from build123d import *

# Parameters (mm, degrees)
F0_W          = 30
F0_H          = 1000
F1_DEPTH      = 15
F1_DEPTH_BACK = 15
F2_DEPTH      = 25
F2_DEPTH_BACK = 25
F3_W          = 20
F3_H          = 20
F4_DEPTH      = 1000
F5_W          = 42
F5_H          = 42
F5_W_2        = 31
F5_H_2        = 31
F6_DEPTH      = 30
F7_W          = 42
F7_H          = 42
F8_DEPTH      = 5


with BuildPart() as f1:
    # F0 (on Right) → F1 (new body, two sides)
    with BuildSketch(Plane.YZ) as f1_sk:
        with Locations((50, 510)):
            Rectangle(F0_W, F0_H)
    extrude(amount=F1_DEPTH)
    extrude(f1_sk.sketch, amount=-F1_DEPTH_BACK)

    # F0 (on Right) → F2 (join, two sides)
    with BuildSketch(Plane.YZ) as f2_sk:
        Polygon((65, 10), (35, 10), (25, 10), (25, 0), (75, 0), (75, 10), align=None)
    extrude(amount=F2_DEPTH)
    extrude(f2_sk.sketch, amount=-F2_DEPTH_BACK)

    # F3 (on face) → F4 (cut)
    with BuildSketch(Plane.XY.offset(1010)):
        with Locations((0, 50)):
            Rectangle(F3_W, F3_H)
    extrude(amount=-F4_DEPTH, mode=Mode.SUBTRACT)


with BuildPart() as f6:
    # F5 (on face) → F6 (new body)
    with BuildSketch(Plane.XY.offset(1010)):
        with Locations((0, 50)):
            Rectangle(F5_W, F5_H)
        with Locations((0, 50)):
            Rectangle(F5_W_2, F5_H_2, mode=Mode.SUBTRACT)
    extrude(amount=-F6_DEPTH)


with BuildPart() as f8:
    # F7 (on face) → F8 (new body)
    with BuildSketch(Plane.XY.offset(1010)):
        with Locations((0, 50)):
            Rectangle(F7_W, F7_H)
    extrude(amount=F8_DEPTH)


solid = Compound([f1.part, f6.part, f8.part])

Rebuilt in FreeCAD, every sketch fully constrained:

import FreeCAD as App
import Part
import Sketcher

V = App.Vector

doc = App.newDocument("Part")
params = doc.addObject("Spreadsheet::Sheet", "Params")
for row, (alias, value) in enumerate([
    ("sketch1_width", "30 mm"),
    ("sketch1_height", "1000 mm"),
    ("pad1_length", "15 mm"),
    ("pad1_length2", "15 mm"),
    ("sketch2_width", "50 mm"),
    ("sketch2_height", "10 mm"),
    ("pad2_length", "25 mm"),
    ("pad2_length2", "25 mm"),
    ("sketch3_width", "20 mm"),
    ("pocket1_length", "1000 mm"),
    ("sketch4_width", "42 mm"),
    ("sketch4_width2", "31 mm"),
    ("pad3_length", "30 mm"),
    ("sketch5_width", "42 mm"),
    ("pad4_length", "5 mm"),
], start=1):
    params.set(f"A{row}", alias)
    params.set(f"B{row}", "=" + value)
    params.setAlias(f"B{row}", alias)

body = doc.addObject("PartDesign::Body", "Body")

sketch1 = body.newObject("Sketcher::SketchObject", "Sketch")
sketch1.AttachmentSupport = (doc.getObject("YZ_Plane"), [""])
sketch1.MapMode = "FlatFace"
sketch1.addGeometry([
    Part.LineSegment(V(35, 1010, 0), V(35, 10, 0)),
    Part.LineSegment(V(35, 10, 0), V(65, 10, 0)),
    Part.LineSegment(V(65, 10, 0), V(65, 1010, 0)),
    Part.LineSegment(V(65, 1010, 0), V(35, 1010, 0)),
], False)
sketch1.addConstraint([
    Sketcher.Constraint("Coincident", 0, 2, 1, 1),
    Sketcher.Constraint("Coincident", 1, 2, 2, 1),
    Sketcher.Constraint("Coincident", 2, 2, 3, 1),
    Sketcher.Constraint("Coincident", 3, 2, 0, 1),
    Sketcher.Constraint("Vertical", 0),
    Sketcher.Constraint("Horizontal", 1),
    Sketcher.Constraint("Vertical", 2),
    Sketcher.Constraint("Horizontal", 3),
    Sketcher.Constraint("DistanceX", 1, 1, 1, 2, 30.0),
    Sketcher.Constraint("DistanceY", 0, 2, 0, 1, 1000.0),
    Sketcher.Constraint("DistanceX", -1, 1, 0, 2, 35.0),
    Sketcher.Constraint("DistanceY", -1, 1, 0, 2, 10.0),
])
sketch1.setExpression("Constraints[8]", "Params.sketch1_width")
sketch1.setExpression("Constraints[9]", "Params.sketch1_height")
pad1 = body.newObject("PartDesign::Pad", "Pad")
pad1.Profile = sketch1
pad1.Type = "TwoLengths"
pad1.setExpression("Length", "Params.pad1_length")
pad1.setExpression("Length2", "Params.pad1_length2")

sketch2 = body.newObject("Sketcher::SketchObject", "Sketch001")
sketch2.AttachmentSupport = (doc.getObject("YZ_Plane"), [""])
sketch2.MapMode = "FlatFace"
sketch2.addGeometry([
    Part.LineSegment(V(25, 10, 0), V(25, 0, 0)),
    Part.LineSegment(V(25, 0, 0), V(75, 0, 0)),
    Part.LineSegment(V(75, 0, 0), V(75, 10, 0)),
    Part.LineSegment(V(75, 10, 0), V(25, 10, 0)),
], False)
sketch2.addConstraint([
    Sketcher.Constraint("Coincident", 0, 2, 1, 1),
    Sketcher.Constraint("Coincident", 1, 2, 2, 1),
    Sketcher.Constraint("Coincident", 2, 2, 3, 1),
    Sketcher.Constraint("Coincident", 3, 2, 0, 1),
    Sketcher.Constraint("Vertical", 0),
    Sketcher.Constraint("Horizontal", 1),
    Sketcher.Constraint("Vertical", 2),
    Sketcher.Constraint("Horizontal", 3),
    Sketcher.Constraint("PointOnObject", 0, 2, -1),
    Sketcher.Constraint("DistanceX", 1, 1, 1, 2, 50.0),
    Sketcher.Constraint("DistanceY", 0, 2, 0, 1, 10.0),
    Sketcher.Constraint("DistanceX", -1, 1, 0, 2, 25.0),
])
sketch2.setExpression("Constraints[9]", "Params.sketch2_width")
sketch2.setExpression("Constraints[10]", "Params.sketch2_height")
pad2 = body.newObject("PartDesign::Pad", "Pad001")
pad2.Profile = sketch2
pad2.Type = "TwoLengths"
pad2.setExpression("Length", "Params.pad2_length")
pad2.setExpression("Length2", "Params.pad2_length2")

sketch3 = body.newObject("Sketcher::SketchObject", "Sketch002")
sketch3.AttachmentSupport = (doc.getObject("XY_Plane"), [""])
sketch3.MapMode = "FlatFace"
sketch3.AttachmentOffset = App.Placement(V(0, 0, 1010), App.Rotation())
sketch3.addGeometry([
    Part.LineSegment(V(-10, 60, 0), V(-10, 40, 0)),
    Part.LineSegment(V(-10, 40, 0), V(10, 40, 0)),
    Part.LineSegment(V(10, 40, 0), V(10, 60, 0)),
    Part.LineSegment(V(10, 60, 0), V(-10, 60, 0)),
], False)
sketch3.addConstraint([
    Sketcher.Constraint("Coincident", 0, 2, 1, 1),
    Sketcher.Constraint("Coincident", 1, 2, 2, 1),
    Sketcher.Constraint("Coincident", 2, 2, 3, 1),
    Sketcher.Constraint("Coincident", 3, 2, 0, 1),
    Sketcher.Constraint("Vertical", 0),
    Sketcher.Constraint("Horizontal", 1),
    Sketcher.Constraint("Vertical", 2),
    Sketcher.Constraint("Horizontal", 3),
    Sketcher.Constraint("Equal", 3, 0),
    Sketcher.Constraint("DistanceX", 1, 1, 1, 2, 20.0),
    Sketcher.Constraint("DistanceX", 0, 2, -1, 1, 10.0),
    Sketcher.Constraint("DistanceY", -1, 1, 0, 2, 40.0),
])
sketch3.setExpression("Constraints[9]", "Params.sketch3_width")
pocket1 = body.newObject("PartDesign::Pocket", "Pocket")
pocket1.Profile = sketch3
pocket1.setExpression("Length", "Params.pocket1_length")
body2 = doc.addObject("PartDesign::Body", "Body001")

sketch4 = body2.newObject("Sketcher::SketchObject", "Sketch003")
sketch4.AttachmentSupport = (doc.getObject("XY_Plane001"), [""])
sketch4.MapMode = "FlatFace"
sketch4.AttachmentOffset = App.Placement(V(0, 0, 1010), App.Rotation())
sketch4.addGeometry([
    Part.LineSegment(V(-21, 71, 0), V(-21, 29, 0)),
    Part.LineSegment(V(-21, 29, 0), V(21, 29, 0)),
    Part.LineSegment(V(21, 29, 0), V(21, 71, 0)),
    Part.LineSegment(V(21, 71, 0), V(-21, 71, 0)),
    Part.LineSegment(V(16, 34, 0), V(-16, 34, 0)),
    Part.LineSegment(V(-16, 34, 0), V(-16, 66, 0)),
    Part.LineSegment(V(-16, 66, 0), V(16, 66, 0)),
    Part.LineSegment(V(16, 66, 0), V(16, 34, 0)),
], False)
sketch4.addConstraint([
    Sketcher.Constraint("Coincident", 0, 2, 1, 1),
    Sketcher.Constraint("Coincident", 1, 2, 2, 1),
    Sketcher.Constraint("Coincident", 2, 2, 3, 1),
    Sketcher.Constraint("Coincident", 3, 2, 0, 1),
    Sketcher.Constraint("Coincident", 4, 2, 5, 1),
    Sketcher.Constraint("Coincident", 5, 2, 6, 1),
    Sketcher.Constraint("Coincident", 6, 2, 7, 1),
    Sketcher.Constraint("Coincident", 7, 2, 4, 1),
    Sketcher.Constraint("Vertical", 0),
    Sketcher.Constraint("Horizontal", 1),
    Sketcher.Constraint("Vertical", 2),
    Sketcher.Constraint("Horizontal", 3),
    Sketcher.Constraint("Horizontal", 4),
    Sketcher.Constraint("Vertical", 5),
    Sketcher.Constraint("Horizontal", 6),
    Sketcher.Constraint("Vertical", 7),
    Sketcher.Constraint("Equal", 3, 0),
    Sketcher.Constraint("Equal", 6, 5),
    Sketcher.Constraint("DistanceX", 1, 1, 1, 2, 42.0),
    Sketcher.Constraint("DistanceX", 4, 2, 4, 1, 31.0),
    Sketcher.Constraint("DistanceX", 0, 2, -1, 1, 21.0),
    Sketcher.Constraint("DistanceY", -1, 1, 0, 2, 29.0),
    Sketcher.Constraint("DistanceX", 4, 2, -1, 1, 15.5),
    Sketcher.Constraint("DistanceY", -1, 1, 4, 2, 34.5),
])
sketch4.setExpression("Constraints[18]", "Params.sketch4_width")
sketch4.setExpression("Constraints[19]", "Params.sketch4_width2")
pad3 = body2.newObject("PartDesign::Pad", "Pad002")
pad3.Profile = sketch4
pad3.setExpression("Length", "Params.pad3_length")
pad3.Reversed = True
body3 = doc.addObject("PartDesign::Body", "Body002")

sketch5 = body3.newObject("Sketcher::SketchObject", "Sketch004")
sketch5.AttachmentSupport = (doc.getObject("XY_Plane002"), [""])
sketch5.MapMode = "FlatFace"
sketch5.AttachmentOffset = App.Placement(V(0, 0, 1010), App.Rotation())
sketch5.addGeometry([
    Part.LineSegment(V(-21, 71, 0), V(-21, 29, 0)),
    Part.LineSegment(V(-21, 29, 0), V(21, 29, 0)),
    Part.LineSegment(V(21, 29, 0), V(21, 71, 0)),
    Part.LineSegment(V(21, 71, 0), V(-21, 71, 0)),
], False)
sketch5.addConstraint([
    Sketcher.Constraint("Coincident", 0, 2, 1, 1),
    Sketcher.Constraint("Coincident", 1, 2, 2, 1),
    Sketcher.Constraint("Coincident", 2, 2, 3, 1),
    Sketcher.Constraint("Coincident", 3, 2, 0, 1),
    Sketcher.Constraint("Vertical", 0),
    Sketcher.Constraint("Horizontal", 1),
    Sketcher.Constraint("Vertical", 2),
    Sketcher.Constraint("Horizontal", 3),
    Sketcher.Constraint("Equal", 3, 0),
    Sketcher.Constraint("DistanceX", 1, 1, 1, 2, 42.0),
    Sketcher.Constraint("DistanceX", 0, 2, -1, 1, 21.0),
    Sketcher.Constraint("DistanceY", -1, 1, 0, 2, 29.0),
])
sketch5.setExpression("Constraints[9]", "Params.sketch5_width")
pad4 = body3.newObject("PartDesign::Pad", "Pad003")
pad4.Profile = sketch5
pad4.setExpression("Length", "Params.pad4_length")

doc.recompute()
